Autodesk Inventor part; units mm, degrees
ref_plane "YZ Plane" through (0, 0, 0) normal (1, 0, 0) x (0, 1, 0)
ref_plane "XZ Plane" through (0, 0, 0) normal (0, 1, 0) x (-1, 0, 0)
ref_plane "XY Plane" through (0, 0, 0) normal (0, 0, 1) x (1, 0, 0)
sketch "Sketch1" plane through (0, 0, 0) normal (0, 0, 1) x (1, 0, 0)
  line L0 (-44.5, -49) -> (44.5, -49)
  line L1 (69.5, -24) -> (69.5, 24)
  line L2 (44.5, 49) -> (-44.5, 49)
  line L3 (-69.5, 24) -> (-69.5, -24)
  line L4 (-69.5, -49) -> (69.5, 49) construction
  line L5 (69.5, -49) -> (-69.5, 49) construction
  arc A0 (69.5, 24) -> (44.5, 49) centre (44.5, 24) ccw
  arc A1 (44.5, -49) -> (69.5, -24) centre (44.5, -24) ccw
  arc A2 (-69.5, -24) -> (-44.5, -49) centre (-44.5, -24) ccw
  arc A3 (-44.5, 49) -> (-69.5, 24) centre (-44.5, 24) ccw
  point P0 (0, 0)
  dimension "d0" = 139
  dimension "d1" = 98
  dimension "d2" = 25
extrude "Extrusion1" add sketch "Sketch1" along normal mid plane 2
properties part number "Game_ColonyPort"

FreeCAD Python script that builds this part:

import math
import FreeCAD as App
import Part
import Sketcher
Q = App.Units.Quantity

doc = App.newDocument("Part")
body = doc.addObject("PartDesign::Body", "Body")

# Sketch on XY plane
sketch1 = body.newObject("Sketcher::SketchObject", "Sketch")
sketch1.AttachmentSupport = (doc.getObject("XY_Plane"), [""])
sketch1.MapMode = "FlatFace"
sketch1.addGeometry(Part.ArcOfCircle(Part.Circle(App.Vector(-44, -24, 0), App.Vector(0, 0, 1), 25), math.radians(180), math.radians(270)), False)
sketch1.addGeometry(Part.LineSegment(App.Vector(-44, -49, 0), App.Vector(44, -49, 0)), False)
sketch1.addGeometry(Part.ArcOfCircle(Part.Circle(App.Vector(44, -24, 0), App.Vector(0, 0, 1), 25), math.radians(-90), math.radians(0)), False)
sketch1.addGeometry(Part.LineSegment(App.Vector(70, -24, 0), App.Vector(70, 24, 0)), False)
sketch1.addGeometry(Part.ArcOfCircle(Part.Circle(App.Vector(44, 24, 0), App.Vector(0, 0, 1), 25), math.radians(0), math.radians(90)), False)
sketch1.addGeometry(Part.LineSegment(App.Vector(44, 49, 0), App.Vector(-44, 49, 0)), False)
sketch1.addGeometry(Part.ArcOfCircle(Part.Circle(App.Vector(-44, 24, 0), App.Vector(0, 0, 1), 25), math.radians(90), math.radians(180)), False)
sketch1.addGeometry(Part.LineSegment(App.Vector(-70, 24, 0), App.Vector(-70, -24, 0)), False)
sketch1.addConstraint(Sketcher.Constraint("Tangent", 0, 2, 1, 1))
sketch1.addConstraint(Sketcher.Constraint("Tangent", 1, 2, 2, 1))
sketch1.addConstraint(Sketcher.Constraint("Tangent", 2, 2, 3, 1))
sketch1.addConstraint(Sketcher.Constraint("Tangent", 3, 2, 4, 1))
sketch1.addConstraint(Sketcher.Constraint("Tangent", 4, 2, 5, 1))
sketch1.addConstraint(Sketcher.Constraint("Tangent", 5, 2, 6, 1))
sketch1.addConstraint(Sketcher.Constraint("Tangent", 6, 2, 7, 1))
sketch1.addConstraint(Sketcher.Constraint("Tangent", 7, 2, 0, 1))
sketch1.addConstraint(Sketcher.Constraint("Horizontal", 1))
sketch1.addConstraint(Sketcher.Constraint("Vertical", 3))
sketch1.addConstraint(Sketcher.Constraint("Horizontal", 5))
sketch1.addConstraint(Sketcher.Constraint("Vertical", 7))
sketch1.addConstraint(Sketcher.Constraint("Equal", 0, 2))
sketch1.addConstraint(Sketcher.Constraint("Equal", 2, 4))
sketch1.addConstraint(Sketcher.Constraint("Equal", 4, 6))
sketch1.addConstraint(Sketcher.Constraint("Symmetric", 0, 3, 4, 3, -1, 1))
sketch1.addConstraint(Sketcher.Constraint("Radius", 0, Q("25 mm")))
sketch1.addConstraint(Sketcher.Constraint("DistanceY", 0, 2, 5, 2, Q("98 mm")))
sketch1.addConstraint(Sketcher.Constraint("DistanceX", 1, 1, 1, 2, Q("89 mm")))
pad1 = body.newObject("PartDesign::Pad", "Pad")
pad1.Profile = sketch1
pad1.Length = 2
pad1.Midplane = True

doc.recompute()
